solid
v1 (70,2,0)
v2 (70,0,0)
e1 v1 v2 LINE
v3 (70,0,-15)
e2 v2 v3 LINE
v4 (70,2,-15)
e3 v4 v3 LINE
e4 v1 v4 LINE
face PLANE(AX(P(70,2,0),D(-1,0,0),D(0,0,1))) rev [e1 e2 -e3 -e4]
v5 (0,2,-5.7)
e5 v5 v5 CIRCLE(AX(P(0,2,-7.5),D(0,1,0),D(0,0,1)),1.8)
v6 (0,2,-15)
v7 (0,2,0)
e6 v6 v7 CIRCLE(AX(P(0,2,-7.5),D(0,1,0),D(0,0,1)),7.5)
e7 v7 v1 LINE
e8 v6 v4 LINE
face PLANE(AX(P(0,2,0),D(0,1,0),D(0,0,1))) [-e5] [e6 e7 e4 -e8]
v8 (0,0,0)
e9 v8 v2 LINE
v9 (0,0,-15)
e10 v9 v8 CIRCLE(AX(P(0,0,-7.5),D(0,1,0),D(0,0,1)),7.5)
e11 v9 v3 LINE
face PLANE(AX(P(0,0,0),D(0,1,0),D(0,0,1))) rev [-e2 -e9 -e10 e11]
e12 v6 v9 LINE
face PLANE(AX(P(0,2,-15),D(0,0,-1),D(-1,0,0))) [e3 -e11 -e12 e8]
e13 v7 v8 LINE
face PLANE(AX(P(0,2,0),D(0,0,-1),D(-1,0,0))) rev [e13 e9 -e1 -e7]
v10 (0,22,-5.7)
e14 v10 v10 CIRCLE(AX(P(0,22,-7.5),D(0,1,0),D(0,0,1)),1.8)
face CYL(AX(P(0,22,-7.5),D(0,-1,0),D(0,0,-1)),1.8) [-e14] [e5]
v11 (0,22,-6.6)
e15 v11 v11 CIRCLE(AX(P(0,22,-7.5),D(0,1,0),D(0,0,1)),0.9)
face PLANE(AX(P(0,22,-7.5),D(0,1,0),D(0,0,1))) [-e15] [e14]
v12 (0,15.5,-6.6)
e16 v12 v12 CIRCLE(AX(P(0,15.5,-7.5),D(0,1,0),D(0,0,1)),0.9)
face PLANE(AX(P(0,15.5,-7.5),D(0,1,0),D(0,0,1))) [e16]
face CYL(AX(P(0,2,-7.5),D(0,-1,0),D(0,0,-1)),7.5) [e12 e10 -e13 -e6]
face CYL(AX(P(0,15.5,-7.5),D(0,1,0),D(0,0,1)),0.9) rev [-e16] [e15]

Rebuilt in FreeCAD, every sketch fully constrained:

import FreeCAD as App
import Part
import Sketcher

V = App.Vector

doc = App.newDocument("Part")
params = doc.addObject("Spreadsheet::Sheet", "Params")
for row, (alias, value) in enumerate([
    ("sketch1_width", "70 mm"),
    ("sketch1_height", "15 mm"),
    ("pad1_length", "2 mm"),
    ("sketch2_diameter", "15 mm"),
    ("pad2_length", "2 mm"),
    ("sketch3_diameter", "3.6 mm"),
    ("pad3_length", "20 mm"),
    ("sketch4_diameter", "1.8 mm"),
    ("pocket1_length", "6.5 mm"),
], start=1):
    params.set(f"A{row}", alias)
    params.set(f"B{row}", "=" + value)
    params.setAlias(f"B{row}", alias)

body = doc.addObject("PartDesign::Body", "Body")

# Sketch on XZ plane
sketch1 = doc.addObject("Sketcher::SketchObject", "Sketch")
body.addObject(sketch1)
sketch1.AttachmentSupport = (doc.XZ_Plane, [""])
sketch1.MapMode = "FlatFace"
sketch1.addGeometry([
    Part.LineSegment(V(0, -15, 0), V(0, 0, 0)),
    Part.LineSegment(V(0, 0, 0), V(70, 0, 0)),
    Part.LineSegment(V(70, 0, 0), V(70, -15, 0)),
    Part.LineSegment(V(70, -15, 0), V(0, -15, 0)),
], False)
sketch1.addConstraint([
    Sketcher.Constraint("Coincident", 0, 2, 1, 1),
    Sketcher.Constraint("Coincident", 1, 2, 2, 1),
    Sketcher.Constraint("Coincident", 2, 2, 3, 1),
    Sketcher.Constraint("Coincident", 3, 2, 0, 1),
    Sketcher.Constraint("Vertical", 0),
    Sketcher.Constraint("Horizontal", 1),
    Sketcher.Constraint("Vertical", 2),
    Sketcher.Constraint("Horizontal", 3),
    Sketcher.Constraint("Coincident", 0, 2, -1, 1),
    Sketcher.Constraint("DistanceX", 1, 1, 1, 2, 70.0),
    Sketcher.Constraint("DistanceY", 0, 1, 0, 2, 15.0),
])
sketch1.setExpression("Constraints[9]", "Params.sketch1_width")
sketch1.setExpression("Constraints[10]", "Params.sketch1_height")
pad1 = doc.addObject("PartDesign::Pad", "Pad")
body.addObject(pad1)
pad1.Profile = sketch1
pad1.setExpression("Length", "Params.pad1_length")
pad1.Reversed = True

# Sketch on XZ plane
sketch2 = doc.addObject("Sketcher::SketchObject", "Sketch001")
body.addObject(sketch2)
sketch2.AttachmentSupport = (doc.XZ_Plane, [""])
sketch2.MapMode = "FlatFace"
sketch2.addGeometry(Part.Circle(V(0, -8, 0), V(0, 0, 1), 8), False)
sketch2.addConstraint([
    Sketcher.Constraint("PointOnObject", 0, 3, -2),
    Sketcher.Constraint("Diameter", 0, 15.0),
    Sketcher.Constraint("DistanceY", 0, 3, -1, 1, 7.5),
])
sketch2.setExpression("Constraints[1]", "Params.sketch2_diameter")
pad2 = doc.addObject("PartDesign::Pad", "Pad001")
body.addObject(pad2)
pad2.Profile = sketch2
pad2.setExpression("Length", "Params.pad2_length")
pad2.Reversed = True

# Sketch on XZ plane
sketch3 = doc.addObject("Sketcher::SketchObject", "Sketch002")
body.addObject(sketch3)
sketch3.AttachmentSupport = (doc.XZ_Plane, [""])
sketch3.MapMode = "FlatFace"
sketch3.AttachmentOffset = App.Placement(V(0, 0, -2), App.Rotation())
sketch3.addGeometry(Part.Circle(V(0, -7.5, 0), V(0, 0, 1), 1.8), False)
sketch3.addConstraint([
    Sketcher.Constraint("PointOnObject", 0, 3, -2),
    Sketcher.Constraint("Diameter", 0, 3.6),
    Sketcher.Constraint("DistanceY", 0, 3, -1, 1, 7.5),
])
sketch3.setExpression("Constraints[1]", "Params.sketch3_diameter")
pad3 = doc.addObject("PartDesign::Pad", "Pad002")
body.addObject(pad3)
pad3.Profile = sketch3
pad3.setExpression("Length", "Params.pad3_length")
pad3.Reversed = True

# Sketch on XZ plane
sketch4 = doc.addObject("Sketcher::SketchObject", "Sketch003")
body.addObject(sketch4)
sketch4.AttachmentSupport = (doc.XZ_Plane, [""])
sketch4.MapMode = "FlatFace"
sketch4.AttachmentOffset = App.Placement(V(0, 0, -22), App.Rotation())
sketch4.addGeometry(Part.Circle(V(0, -7.5, 0), V(0, 0, 1), 0.9), False)
sketch4.addConstraint([
    Sketcher.Constraint("PointOnObject", 0, 3, -2),
    Sketcher.Constraint("Diameter", 0, 1.8),
    Sketcher.Constraint("DistanceY", 0, 3, -1, 1, 7.5),
])
sketch4.setExpression("Constraints[1]", "Params.sketch4_diameter")
pocket1 = doc.addObject("PartDesign::Pocket", "Pocket")
body.addObject(pocket1)
pocket1.Profile = sketch4
pocket1.setExpression("Length", "Params.pocket1_length")
pocket1.Reversed = True

doc.recompute()
